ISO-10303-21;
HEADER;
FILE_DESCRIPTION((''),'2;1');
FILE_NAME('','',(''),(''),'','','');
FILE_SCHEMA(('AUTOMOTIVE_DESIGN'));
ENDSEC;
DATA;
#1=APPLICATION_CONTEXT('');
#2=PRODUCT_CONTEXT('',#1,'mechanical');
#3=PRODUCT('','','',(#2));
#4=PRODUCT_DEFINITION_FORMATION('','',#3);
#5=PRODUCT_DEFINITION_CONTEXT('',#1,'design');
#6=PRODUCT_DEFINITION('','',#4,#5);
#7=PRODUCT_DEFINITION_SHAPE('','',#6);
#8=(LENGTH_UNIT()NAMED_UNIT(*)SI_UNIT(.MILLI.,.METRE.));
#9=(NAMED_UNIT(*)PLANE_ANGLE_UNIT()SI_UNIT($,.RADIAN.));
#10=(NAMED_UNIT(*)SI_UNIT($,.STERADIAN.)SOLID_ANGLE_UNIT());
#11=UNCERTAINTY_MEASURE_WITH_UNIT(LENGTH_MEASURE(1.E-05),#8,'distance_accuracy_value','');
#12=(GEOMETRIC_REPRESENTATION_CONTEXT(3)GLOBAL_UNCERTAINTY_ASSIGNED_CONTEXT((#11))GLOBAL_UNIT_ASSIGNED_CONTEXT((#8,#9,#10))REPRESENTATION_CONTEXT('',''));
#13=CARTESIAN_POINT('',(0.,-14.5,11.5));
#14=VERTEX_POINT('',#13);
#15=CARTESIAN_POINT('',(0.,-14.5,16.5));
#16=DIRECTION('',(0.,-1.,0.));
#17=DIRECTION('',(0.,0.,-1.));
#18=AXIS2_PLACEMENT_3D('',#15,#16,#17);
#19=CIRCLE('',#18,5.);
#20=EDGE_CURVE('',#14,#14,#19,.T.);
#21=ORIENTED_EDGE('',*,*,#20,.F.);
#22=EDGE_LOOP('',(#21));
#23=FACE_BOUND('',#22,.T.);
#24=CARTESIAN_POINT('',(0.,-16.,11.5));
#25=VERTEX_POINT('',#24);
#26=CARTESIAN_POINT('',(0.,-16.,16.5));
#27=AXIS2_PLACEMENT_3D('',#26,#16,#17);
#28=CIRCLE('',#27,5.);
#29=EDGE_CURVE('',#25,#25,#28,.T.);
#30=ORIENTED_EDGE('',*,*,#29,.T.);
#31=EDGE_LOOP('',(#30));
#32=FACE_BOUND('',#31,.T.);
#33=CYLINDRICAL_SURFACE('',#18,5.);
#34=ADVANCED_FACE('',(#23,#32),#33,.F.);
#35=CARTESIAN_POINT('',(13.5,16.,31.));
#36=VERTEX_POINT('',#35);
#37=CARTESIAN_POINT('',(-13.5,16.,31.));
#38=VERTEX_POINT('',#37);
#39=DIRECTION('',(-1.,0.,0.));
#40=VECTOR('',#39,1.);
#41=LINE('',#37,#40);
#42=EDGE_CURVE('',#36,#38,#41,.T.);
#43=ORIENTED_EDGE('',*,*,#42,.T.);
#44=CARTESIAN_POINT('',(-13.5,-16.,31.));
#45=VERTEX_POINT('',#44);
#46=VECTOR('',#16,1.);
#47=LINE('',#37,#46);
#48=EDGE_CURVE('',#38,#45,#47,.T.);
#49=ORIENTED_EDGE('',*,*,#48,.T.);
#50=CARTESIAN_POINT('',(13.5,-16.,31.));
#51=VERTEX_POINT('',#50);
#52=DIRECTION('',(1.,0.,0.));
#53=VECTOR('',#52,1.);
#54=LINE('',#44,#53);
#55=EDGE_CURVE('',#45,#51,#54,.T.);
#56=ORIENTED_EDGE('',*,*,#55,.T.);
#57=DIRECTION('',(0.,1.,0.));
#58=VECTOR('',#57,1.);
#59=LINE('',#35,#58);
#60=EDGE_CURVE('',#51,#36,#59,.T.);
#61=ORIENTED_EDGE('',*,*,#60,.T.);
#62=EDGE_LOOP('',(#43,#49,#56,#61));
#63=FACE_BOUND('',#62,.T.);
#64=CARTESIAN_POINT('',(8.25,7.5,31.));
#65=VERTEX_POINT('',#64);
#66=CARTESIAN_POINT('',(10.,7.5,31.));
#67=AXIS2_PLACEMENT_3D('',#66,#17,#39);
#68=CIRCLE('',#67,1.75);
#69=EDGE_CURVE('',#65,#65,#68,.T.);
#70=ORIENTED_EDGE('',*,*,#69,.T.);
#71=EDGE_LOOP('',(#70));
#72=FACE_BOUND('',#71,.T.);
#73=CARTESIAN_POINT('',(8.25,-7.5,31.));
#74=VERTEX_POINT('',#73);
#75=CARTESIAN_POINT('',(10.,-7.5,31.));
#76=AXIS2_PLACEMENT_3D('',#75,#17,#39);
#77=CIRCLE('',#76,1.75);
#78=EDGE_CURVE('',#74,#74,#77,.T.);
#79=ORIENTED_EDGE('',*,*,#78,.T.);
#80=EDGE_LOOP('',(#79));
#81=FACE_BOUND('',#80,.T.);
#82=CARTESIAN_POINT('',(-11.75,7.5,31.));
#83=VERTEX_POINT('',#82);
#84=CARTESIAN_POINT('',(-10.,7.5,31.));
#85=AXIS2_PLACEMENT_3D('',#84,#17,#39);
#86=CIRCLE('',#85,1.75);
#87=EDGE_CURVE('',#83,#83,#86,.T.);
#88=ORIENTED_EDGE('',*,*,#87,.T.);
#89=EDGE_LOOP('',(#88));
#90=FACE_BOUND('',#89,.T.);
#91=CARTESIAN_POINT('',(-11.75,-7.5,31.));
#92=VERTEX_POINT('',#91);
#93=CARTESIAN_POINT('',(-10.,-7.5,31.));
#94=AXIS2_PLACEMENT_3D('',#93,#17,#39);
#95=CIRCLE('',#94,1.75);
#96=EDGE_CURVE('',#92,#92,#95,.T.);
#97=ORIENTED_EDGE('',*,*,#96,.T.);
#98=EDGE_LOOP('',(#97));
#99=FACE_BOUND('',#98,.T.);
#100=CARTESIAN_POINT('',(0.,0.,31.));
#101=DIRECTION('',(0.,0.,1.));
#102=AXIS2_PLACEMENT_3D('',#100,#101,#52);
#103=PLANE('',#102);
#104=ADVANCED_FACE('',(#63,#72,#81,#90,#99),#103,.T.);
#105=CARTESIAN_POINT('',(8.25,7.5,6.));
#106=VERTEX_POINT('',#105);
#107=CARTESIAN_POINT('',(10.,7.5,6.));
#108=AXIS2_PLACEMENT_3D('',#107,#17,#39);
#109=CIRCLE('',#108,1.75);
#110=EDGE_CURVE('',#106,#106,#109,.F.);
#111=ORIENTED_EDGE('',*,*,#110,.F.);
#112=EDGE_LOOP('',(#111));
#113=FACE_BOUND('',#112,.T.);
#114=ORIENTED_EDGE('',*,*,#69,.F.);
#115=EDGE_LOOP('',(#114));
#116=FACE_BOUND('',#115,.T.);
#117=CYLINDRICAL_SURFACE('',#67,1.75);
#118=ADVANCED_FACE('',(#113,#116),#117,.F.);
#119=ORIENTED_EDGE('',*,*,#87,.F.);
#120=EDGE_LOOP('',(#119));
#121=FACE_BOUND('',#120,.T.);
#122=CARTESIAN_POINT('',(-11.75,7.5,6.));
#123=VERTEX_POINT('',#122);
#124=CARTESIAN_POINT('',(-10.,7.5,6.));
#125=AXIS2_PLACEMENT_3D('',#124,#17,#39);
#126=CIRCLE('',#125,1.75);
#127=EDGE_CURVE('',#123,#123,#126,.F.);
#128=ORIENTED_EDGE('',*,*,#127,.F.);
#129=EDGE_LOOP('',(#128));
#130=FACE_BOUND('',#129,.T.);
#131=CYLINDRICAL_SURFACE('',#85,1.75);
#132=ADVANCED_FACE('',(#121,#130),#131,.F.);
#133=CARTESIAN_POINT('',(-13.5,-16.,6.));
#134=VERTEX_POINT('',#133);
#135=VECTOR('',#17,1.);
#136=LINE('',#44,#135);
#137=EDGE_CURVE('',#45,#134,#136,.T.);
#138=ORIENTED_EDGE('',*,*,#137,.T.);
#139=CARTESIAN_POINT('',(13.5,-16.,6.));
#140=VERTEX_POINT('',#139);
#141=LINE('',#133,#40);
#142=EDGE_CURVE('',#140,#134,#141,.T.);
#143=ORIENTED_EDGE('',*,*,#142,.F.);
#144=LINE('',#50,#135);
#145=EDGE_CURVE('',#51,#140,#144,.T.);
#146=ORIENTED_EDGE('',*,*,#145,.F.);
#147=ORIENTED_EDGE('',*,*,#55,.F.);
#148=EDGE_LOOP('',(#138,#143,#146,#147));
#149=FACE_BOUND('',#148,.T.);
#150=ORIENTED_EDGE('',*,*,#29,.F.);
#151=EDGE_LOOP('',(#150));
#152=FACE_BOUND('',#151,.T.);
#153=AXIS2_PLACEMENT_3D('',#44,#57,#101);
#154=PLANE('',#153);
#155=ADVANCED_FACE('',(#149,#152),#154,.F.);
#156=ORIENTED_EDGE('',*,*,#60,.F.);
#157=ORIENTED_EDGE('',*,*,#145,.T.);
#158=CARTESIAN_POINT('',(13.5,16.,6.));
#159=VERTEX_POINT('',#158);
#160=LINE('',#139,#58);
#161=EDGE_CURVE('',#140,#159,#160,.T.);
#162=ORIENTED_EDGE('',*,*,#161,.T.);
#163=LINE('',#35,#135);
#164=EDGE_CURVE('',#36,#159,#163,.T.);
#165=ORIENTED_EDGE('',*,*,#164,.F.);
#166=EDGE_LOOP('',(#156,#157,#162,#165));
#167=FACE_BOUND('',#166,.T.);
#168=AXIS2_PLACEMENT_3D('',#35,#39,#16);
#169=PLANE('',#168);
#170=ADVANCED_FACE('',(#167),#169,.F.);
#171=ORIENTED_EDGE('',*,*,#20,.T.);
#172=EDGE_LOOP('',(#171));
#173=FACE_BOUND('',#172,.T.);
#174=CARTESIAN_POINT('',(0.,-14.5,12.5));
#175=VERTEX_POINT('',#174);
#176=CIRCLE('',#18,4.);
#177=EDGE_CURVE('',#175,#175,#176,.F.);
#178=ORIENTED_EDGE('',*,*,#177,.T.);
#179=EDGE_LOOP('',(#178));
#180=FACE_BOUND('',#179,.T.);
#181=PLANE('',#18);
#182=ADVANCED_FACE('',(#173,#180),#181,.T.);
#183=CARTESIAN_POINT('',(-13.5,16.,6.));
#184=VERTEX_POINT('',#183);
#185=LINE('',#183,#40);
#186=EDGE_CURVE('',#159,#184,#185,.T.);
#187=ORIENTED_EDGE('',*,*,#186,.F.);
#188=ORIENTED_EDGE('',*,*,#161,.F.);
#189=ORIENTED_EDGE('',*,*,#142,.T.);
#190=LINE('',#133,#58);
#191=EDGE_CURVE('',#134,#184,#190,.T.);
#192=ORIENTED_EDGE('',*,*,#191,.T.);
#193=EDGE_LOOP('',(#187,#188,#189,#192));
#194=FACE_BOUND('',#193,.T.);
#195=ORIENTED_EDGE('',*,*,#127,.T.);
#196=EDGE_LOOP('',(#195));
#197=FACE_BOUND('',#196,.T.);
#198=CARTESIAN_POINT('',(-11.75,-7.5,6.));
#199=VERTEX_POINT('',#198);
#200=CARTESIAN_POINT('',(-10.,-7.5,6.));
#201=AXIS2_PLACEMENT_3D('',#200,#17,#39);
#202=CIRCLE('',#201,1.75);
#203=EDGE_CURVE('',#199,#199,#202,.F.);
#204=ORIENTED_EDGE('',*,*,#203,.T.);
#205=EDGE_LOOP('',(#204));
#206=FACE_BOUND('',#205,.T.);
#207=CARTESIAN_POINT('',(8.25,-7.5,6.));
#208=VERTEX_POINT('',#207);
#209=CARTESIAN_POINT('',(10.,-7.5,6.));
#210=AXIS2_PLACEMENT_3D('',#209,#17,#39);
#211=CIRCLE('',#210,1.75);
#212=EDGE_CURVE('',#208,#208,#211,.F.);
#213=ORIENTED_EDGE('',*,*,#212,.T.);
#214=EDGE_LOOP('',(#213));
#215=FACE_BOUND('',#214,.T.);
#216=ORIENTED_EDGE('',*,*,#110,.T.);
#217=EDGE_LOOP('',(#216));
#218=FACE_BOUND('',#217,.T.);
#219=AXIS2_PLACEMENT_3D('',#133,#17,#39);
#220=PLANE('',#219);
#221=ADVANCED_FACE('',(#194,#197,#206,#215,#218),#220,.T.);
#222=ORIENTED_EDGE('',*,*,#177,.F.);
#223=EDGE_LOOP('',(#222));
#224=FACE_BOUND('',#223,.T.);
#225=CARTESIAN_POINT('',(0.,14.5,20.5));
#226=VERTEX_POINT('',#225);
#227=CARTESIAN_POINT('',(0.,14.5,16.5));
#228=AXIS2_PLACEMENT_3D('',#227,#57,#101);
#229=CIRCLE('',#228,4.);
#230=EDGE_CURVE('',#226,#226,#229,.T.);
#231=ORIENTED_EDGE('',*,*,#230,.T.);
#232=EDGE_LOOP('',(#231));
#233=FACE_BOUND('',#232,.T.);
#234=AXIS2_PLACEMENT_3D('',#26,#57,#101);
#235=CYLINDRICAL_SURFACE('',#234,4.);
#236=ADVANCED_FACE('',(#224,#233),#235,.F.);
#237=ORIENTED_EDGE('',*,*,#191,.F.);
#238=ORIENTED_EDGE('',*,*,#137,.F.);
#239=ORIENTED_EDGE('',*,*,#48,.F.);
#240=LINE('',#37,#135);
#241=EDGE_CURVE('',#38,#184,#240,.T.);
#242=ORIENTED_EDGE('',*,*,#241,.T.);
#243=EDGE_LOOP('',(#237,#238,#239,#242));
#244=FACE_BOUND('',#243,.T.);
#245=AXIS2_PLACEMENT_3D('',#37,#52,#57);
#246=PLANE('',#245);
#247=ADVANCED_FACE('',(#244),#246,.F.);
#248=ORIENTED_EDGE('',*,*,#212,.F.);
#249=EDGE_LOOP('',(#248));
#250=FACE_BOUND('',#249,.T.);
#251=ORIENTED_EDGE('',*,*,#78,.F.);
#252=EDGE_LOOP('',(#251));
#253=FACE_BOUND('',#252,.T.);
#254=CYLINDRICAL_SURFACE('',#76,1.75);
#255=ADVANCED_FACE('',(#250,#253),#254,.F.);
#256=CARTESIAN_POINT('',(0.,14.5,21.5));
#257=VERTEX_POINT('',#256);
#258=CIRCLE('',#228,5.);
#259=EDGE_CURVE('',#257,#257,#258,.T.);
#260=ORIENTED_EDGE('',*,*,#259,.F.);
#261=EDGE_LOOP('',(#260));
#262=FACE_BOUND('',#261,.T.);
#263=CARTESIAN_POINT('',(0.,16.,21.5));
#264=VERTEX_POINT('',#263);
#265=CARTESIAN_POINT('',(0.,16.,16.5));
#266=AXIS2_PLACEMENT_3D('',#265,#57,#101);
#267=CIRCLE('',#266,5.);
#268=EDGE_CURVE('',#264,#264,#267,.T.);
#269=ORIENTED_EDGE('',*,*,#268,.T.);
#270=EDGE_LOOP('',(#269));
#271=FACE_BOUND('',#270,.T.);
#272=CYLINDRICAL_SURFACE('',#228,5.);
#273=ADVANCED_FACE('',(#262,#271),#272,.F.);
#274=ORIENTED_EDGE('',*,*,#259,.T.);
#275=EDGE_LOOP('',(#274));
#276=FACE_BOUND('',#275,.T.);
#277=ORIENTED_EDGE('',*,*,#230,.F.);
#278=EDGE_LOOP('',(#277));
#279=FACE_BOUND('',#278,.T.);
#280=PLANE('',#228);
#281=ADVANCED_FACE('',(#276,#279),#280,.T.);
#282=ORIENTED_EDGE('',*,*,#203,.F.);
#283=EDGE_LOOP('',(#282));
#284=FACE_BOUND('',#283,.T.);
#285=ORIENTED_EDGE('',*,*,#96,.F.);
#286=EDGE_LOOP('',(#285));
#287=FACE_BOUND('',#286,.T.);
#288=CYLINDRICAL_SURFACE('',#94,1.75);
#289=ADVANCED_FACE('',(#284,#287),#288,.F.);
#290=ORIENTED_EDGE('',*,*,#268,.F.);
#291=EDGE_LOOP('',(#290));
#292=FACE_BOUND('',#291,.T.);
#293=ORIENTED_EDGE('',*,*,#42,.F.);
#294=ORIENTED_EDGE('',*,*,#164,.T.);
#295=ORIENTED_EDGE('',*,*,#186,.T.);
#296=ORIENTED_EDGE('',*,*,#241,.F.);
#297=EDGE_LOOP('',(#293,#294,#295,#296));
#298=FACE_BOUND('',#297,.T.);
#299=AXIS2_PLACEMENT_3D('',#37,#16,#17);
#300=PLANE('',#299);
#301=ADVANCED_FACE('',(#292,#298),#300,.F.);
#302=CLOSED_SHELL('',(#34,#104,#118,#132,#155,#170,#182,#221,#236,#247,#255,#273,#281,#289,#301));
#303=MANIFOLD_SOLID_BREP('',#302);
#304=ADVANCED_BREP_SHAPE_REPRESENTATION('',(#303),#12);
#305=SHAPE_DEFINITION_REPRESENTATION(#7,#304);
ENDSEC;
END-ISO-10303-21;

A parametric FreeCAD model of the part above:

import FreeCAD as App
import Part
import Sketcher

V = App.Vector

doc = App.newDocument("Part")
params = doc.addObject("Spreadsheet::Sheet", "Params")
for row, (alias, value) in enumerate([
    ("sketch1_width", "27 mm"),
    ("sketch1_height", "32 mm"),
    ("pad1_length", "31 mm"),
    ("sketch2_diameter", "3.5 mm"),
    ("sketch3_width", "27 mm"),
    ("sketch3_height", "25 mm"),
    ("sketch3_width2", "39.42 mm"),
    ("sketch3_height2", "43.42 mm"),
    ("sketch4_diameter", "10 mm"),
    ("pocket3_length", "1.5 mm"),
    ("sketch5_diameter", "8 mm"),
    ("sketch6_diameter", "10 mm"),
    ("pocket5_length", "1.5 mm"),
], start=1):
    params.set(f"A{row}", alias)
    params.set(f"B{row}", "=" + value)
    params.setAlias(f"B{row}", alias)

body = doc.addObject("PartDesign::Body", "Body")

# Sketch on XY plane
sketch1 = doc.addObject("Sketcher::SketchObject", "Sketch")
body.addObject(sketch1)
sketch1.AttachmentSupport = (doc.XY_Plane, [""])
sketch1.MapMode = "FlatFace"
sketch1.addGeometry([
    Part.LineSegment(V(-14, 16, 0), V(-14, -16, 0)),
    Part.LineSegment(V(-14, -16, 0), V(14, -16, 0)),
    Part.LineSegment(V(14, -16, 0), V(14, 16, 0)),
    Part.LineSegment(V(14, 16, 0), V(-14, 16, 0)),
], False)
sketch1.addConstraint([
    Sketcher.Constraint("Coincident", 0, 2, 1, 1),
    Sketcher.Constraint("Coincident", 1, 2, 2, 1),
    Sketcher.Constraint("Coincident", 2, 2, 3, 1),
    Sketcher.Constraint("Coincident", 3, 2, 0, 1),
    Sketcher.Constraint("Vertical", 0),
    Sketcher.Constraint("Horizontal", 1),
    Sketcher.Constraint("Vertical", 2),
    Sketcher.Constraint("Horizontal", 3),
    Sketcher.Constraint("Symmetric", 0, 2, 2, 2, -1, 1),
    Sketcher.Constraint("DistanceX", 1, 1, 1, 2, 27.0),
    Sketcher.Constraint("DistanceY", 0, 2, 0, 1, 32.0),
])
sketch1.setExpression("Constraints[9]", "Params.sketch1_width")
sketch1.setExpression("Constraints[10]", "Params.sketch1_height")
pad1 = doc.addObject("PartDesign::Pad", "Pad")
body.addObject(pad1)
pad1.Profile = sketch1
pad1.setExpression("Length", "Params.pad1_length")

# Sketch on XY plane
sketch2 = doc.addObject("Sketcher::SketchObject", "Sketch001")
body.addObject(sketch2)
sketch2.AttachmentSupport = (doc.XY_Plane, [""])
sketch2.MapMode = "FlatFace"
sketch2.addGeometry([
    Part.Circle(V(10, 7.5, 0), V(0, 0, 1), 1.8),
    Part.Circle(V(-10, 7.5, 0), V(0, 0, 1), 1.8),
    Part.Circle(V(-10, -7.5, 0), V(0, 0, 1), 1.8),
    Part.Circle(V(10, -7.5, 0), V(0, 0, 1), 1.8),
], False)
sketch2.addConstraint([
    Sketcher.Constraint("Equal", 0, 1),
    Sketcher.Constraint("Equal", 1, 2),
    Sketcher.Constraint("Equal", 2, 3),
    Sketcher.Constraint("Symmetric", 0, 3, 2, 3, -1, 1),
    Sketcher.Constraint("Symmetric", 1, 3, 3, 3, -1, 1),
    Sketcher.Constraint("Symmetric", 0, 3, 1, 3, -2),
    Sketcher.Constraint("Diameter", 0, 3.5),
    Sketcher.Constraint("DistanceX", -1, 1, 0, 3, 10.0),
    Sketcher.Constraint("DistanceY", 2, 3, 1, 3, 15.0),
])
sketch2.setExpression("Constraints[6]", "Params.sketch2_diameter")
pocket1 = doc.addObject("PartDesign::Pocket", "Pocket")
body.addObject(pocket1)
pocket1.Profile = sketch2
pocket1.Type = "ThroughAll"
pocket1.Reversed = True

# Sketch on XZ plane
sketch3 = doc.addObject("Sketcher::SketchObject", "Sketch002")
body.addObject(sketch3)
sketch3.AttachmentSupport = (doc.XZ_Plane, [""])
sketch3.MapMode = "FlatFace"
sketch3.AttachmentOffset = App.Placement(V(0, 0, -16), App.Rotation())
sketch3.addGeometry([
    Part.LineSegment(V(-20, -6, 0), V(-20, 37, 0)),  # 0
    Part.LineSegment(V(-20, 37, 0), V(20, 37, 0)),  # 1
    Part.LineSegment(V(20, 37, 0), V(20, -6, 0)),  # 2
    Part.LineSegment(V(20, -6, 0), V(-20, -6, 0)),  # 3
    Part.LineSegment(V(14, 31, 0), V(-14, 31, 0)),  # 4
    Part.LineSegment(V(-14, 31, 0), V(-14, 6, 0)),  # 5
    Part.LineSegment(V(-14, 6, 0), V(14, 6, 0)),  # 6
    Part.LineSegment(V(14, 6, 0), V(14, 31, 0)),  # 7
], False)
sketch3.addConstraint([
    Sketcher.Constraint("Coincident", 0, 2, 1, 1),
    Sketcher.Constraint("Coincident", 1, 2, 2, 1),
    Sketcher.Constraint("Coincident", 2, 2, 3, 1),
    Sketcher.Constraint("Coincident", 3, 2, 0, 1),
    Sketcher.Constraint("Coincident", 4, 2, 5, 1),
    Sketcher.Constraint("Coincident", 5, 2, 6, 1),
    Sketcher.Constraint("Coincident", 6, 2, 7, 1),
    Sketcher.Constraint("Coincident", 7, 2, 4, 1),
    Sketcher.Constraint("Vertical", 0),
    Sketcher.Constraint("Horizontal", 1),
    Sketcher.Constraint("Vertical", 2),
    Sketcher.Constraint("Horizontal", 3),
    Sketcher.Constraint("Horizontal", 4),
    Sketcher.Constraint("Vertical", 5),
    Sketcher.Constraint("Horizontal", 6),
    Sketcher.Constraint("Vertical", 7),
    Sketcher.Constraint("DistanceX", 4, 2, 4, 1, 27.0),
    Sketcher.Constraint("DistanceY", 5, 2, 5, 1, 25.0),
    Sketcher.Constraint("DistanceY", -1, 1, 4, 2, 31.0),
    Sketcher.Constraint("DistanceX", 1, 1, 1, 2, 39.42),
    Sketcher.Constraint("DistanceY", 0, 1, 0, 2, 43.42),
    Sketcher.Constraint("DistanceX", 4, 2, -1, 1, 13.5),
    Sketcher.Constraint("DistanceX", 0, 2, -1, 1, 19.71),
    Sketcher.Constraint("DistanceY", -1, 1, 0, 2, 37.21),
])
sketch3.setExpression("Constraints[16]", "Params.sketch3_width")
sketch3.setExpression("Constraints[17]", "Params.sketch3_height")
sketch3.setExpression("Constraints[19]", "Params.sketch3_width2")
sketch3.setExpression("Constraints[20]", "Params.sketch3_height2")
pocket2 = doc.addObject("PartDesign::Pocket", "Pocket001")
body.addObject(pocket2)
pocket2.Profile = sketch3
pocket2.Type = "ThroughAll"
pocket2.Reversed = True

# Sketch on XZ plane
sketch4 = doc.addObject("Sketcher::SketchObject", "Sketch003")
body.addObject(sketch4)
sketch4.AttachmentSupport = (doc.XZ_Plane, [""])
sketch4.MapMode = "FlatFace"
sketch4.AttachmentOffset = App.Placement(V(0, 0, -16), App.Rotation())
sketch4.addGeometry(Part.Circle(V(0, 16, 0), V(0, 0, 1), 5), False)
sketch4.addConstraint([
    Sketcher.Constraint("PointOnObject", 0, 3, -2),
    Sketcher.Constraint("Diameter", 0, 10.0),
    Sketcher.Constraint("DistanceY", -1, 1, 0, 3, 16.5),
])
sketch4.setExpression("Constraints[1]", "Params.sketch4_diameter")
pocket3 = doc.addObject("PartDesign::Pocket", "Pocket002")
body.addObject(pocket3)
pocket3.Profile = sketch4
pocket3.setExpression("Length", "Params.pocket3_length")
pocket3.Reversed = True

# Sketch on XZ plane
sketch5 = doc.addObject("Sketcher::SketchObject", "Sketch004")
body.addObject(sketch5)
sketch5.AttachmentSupport = (doc.XZ_Plane, [""])
sketch5.MapMode = "FlatFace"
sketch5.AttachmentOffset = App.Placement(V(0, 0, -16), App.Rotation())
sketch5.addGeometry(Part.Circle(V(0, 16.5, 0), V(0, 0, 1), 4), False)
sketch5.addConstraint([
    Sketcher.Constraint("PointOnObject", 0, 3, -2),
    Sketcher.Constraint("Diameter", 0, 8.0),
    Sketcher.Constraint("DistanceY", -1, 1, 0, 3, 16.5),
])
sketch5.setExpression("Constraints[1]", "Params.sketch5_diameter")
pocket4 = doc.addObject("PartDesign::Pocket", "Pocket003")
body.addObject(pocket4)
pocket4.Profile = sketch5
pocket4.Type = "ThroughAll"
pocket4.Reversed = True

# Sketch on XZ plane
sketch6 = doc.addObject("Sketcher::SketchObject", "Sketch005")
body.addObject(sketch6)
sketch6.AttachmentSupport = (doc.XZ_Plane, [""])
sketch6.MapMode = "FlatFace"
sketch6.AttachmentOffset = App.Placement(V(0, 0, 16), App.Rotation())
sketch6.addGeometry(Part.Circle(V(0, 16, 0), V(0, 0, 1), 5), False)
sketch6.addConstraint([
    Sketcher.Constraint("PointOnObject", 0, 3, -2),
    Sketcher.Constraint("Diameter", 0, 10.0),
    Sketcher.Constraint("DistanceY", -1, 1, 0, 3, 16.5),
])
sketch6.setExpression("Constraints[1]", "Params.sketch6_diameter")
pocket5 = doc.addObject("PartDesign::Pocket", "Pocket004")
body.addObject(pocket5)
pocket5.Profile = sketch6
pocket5.setExpression("Length", "Params.pocket5_length")

doc.recompute()
